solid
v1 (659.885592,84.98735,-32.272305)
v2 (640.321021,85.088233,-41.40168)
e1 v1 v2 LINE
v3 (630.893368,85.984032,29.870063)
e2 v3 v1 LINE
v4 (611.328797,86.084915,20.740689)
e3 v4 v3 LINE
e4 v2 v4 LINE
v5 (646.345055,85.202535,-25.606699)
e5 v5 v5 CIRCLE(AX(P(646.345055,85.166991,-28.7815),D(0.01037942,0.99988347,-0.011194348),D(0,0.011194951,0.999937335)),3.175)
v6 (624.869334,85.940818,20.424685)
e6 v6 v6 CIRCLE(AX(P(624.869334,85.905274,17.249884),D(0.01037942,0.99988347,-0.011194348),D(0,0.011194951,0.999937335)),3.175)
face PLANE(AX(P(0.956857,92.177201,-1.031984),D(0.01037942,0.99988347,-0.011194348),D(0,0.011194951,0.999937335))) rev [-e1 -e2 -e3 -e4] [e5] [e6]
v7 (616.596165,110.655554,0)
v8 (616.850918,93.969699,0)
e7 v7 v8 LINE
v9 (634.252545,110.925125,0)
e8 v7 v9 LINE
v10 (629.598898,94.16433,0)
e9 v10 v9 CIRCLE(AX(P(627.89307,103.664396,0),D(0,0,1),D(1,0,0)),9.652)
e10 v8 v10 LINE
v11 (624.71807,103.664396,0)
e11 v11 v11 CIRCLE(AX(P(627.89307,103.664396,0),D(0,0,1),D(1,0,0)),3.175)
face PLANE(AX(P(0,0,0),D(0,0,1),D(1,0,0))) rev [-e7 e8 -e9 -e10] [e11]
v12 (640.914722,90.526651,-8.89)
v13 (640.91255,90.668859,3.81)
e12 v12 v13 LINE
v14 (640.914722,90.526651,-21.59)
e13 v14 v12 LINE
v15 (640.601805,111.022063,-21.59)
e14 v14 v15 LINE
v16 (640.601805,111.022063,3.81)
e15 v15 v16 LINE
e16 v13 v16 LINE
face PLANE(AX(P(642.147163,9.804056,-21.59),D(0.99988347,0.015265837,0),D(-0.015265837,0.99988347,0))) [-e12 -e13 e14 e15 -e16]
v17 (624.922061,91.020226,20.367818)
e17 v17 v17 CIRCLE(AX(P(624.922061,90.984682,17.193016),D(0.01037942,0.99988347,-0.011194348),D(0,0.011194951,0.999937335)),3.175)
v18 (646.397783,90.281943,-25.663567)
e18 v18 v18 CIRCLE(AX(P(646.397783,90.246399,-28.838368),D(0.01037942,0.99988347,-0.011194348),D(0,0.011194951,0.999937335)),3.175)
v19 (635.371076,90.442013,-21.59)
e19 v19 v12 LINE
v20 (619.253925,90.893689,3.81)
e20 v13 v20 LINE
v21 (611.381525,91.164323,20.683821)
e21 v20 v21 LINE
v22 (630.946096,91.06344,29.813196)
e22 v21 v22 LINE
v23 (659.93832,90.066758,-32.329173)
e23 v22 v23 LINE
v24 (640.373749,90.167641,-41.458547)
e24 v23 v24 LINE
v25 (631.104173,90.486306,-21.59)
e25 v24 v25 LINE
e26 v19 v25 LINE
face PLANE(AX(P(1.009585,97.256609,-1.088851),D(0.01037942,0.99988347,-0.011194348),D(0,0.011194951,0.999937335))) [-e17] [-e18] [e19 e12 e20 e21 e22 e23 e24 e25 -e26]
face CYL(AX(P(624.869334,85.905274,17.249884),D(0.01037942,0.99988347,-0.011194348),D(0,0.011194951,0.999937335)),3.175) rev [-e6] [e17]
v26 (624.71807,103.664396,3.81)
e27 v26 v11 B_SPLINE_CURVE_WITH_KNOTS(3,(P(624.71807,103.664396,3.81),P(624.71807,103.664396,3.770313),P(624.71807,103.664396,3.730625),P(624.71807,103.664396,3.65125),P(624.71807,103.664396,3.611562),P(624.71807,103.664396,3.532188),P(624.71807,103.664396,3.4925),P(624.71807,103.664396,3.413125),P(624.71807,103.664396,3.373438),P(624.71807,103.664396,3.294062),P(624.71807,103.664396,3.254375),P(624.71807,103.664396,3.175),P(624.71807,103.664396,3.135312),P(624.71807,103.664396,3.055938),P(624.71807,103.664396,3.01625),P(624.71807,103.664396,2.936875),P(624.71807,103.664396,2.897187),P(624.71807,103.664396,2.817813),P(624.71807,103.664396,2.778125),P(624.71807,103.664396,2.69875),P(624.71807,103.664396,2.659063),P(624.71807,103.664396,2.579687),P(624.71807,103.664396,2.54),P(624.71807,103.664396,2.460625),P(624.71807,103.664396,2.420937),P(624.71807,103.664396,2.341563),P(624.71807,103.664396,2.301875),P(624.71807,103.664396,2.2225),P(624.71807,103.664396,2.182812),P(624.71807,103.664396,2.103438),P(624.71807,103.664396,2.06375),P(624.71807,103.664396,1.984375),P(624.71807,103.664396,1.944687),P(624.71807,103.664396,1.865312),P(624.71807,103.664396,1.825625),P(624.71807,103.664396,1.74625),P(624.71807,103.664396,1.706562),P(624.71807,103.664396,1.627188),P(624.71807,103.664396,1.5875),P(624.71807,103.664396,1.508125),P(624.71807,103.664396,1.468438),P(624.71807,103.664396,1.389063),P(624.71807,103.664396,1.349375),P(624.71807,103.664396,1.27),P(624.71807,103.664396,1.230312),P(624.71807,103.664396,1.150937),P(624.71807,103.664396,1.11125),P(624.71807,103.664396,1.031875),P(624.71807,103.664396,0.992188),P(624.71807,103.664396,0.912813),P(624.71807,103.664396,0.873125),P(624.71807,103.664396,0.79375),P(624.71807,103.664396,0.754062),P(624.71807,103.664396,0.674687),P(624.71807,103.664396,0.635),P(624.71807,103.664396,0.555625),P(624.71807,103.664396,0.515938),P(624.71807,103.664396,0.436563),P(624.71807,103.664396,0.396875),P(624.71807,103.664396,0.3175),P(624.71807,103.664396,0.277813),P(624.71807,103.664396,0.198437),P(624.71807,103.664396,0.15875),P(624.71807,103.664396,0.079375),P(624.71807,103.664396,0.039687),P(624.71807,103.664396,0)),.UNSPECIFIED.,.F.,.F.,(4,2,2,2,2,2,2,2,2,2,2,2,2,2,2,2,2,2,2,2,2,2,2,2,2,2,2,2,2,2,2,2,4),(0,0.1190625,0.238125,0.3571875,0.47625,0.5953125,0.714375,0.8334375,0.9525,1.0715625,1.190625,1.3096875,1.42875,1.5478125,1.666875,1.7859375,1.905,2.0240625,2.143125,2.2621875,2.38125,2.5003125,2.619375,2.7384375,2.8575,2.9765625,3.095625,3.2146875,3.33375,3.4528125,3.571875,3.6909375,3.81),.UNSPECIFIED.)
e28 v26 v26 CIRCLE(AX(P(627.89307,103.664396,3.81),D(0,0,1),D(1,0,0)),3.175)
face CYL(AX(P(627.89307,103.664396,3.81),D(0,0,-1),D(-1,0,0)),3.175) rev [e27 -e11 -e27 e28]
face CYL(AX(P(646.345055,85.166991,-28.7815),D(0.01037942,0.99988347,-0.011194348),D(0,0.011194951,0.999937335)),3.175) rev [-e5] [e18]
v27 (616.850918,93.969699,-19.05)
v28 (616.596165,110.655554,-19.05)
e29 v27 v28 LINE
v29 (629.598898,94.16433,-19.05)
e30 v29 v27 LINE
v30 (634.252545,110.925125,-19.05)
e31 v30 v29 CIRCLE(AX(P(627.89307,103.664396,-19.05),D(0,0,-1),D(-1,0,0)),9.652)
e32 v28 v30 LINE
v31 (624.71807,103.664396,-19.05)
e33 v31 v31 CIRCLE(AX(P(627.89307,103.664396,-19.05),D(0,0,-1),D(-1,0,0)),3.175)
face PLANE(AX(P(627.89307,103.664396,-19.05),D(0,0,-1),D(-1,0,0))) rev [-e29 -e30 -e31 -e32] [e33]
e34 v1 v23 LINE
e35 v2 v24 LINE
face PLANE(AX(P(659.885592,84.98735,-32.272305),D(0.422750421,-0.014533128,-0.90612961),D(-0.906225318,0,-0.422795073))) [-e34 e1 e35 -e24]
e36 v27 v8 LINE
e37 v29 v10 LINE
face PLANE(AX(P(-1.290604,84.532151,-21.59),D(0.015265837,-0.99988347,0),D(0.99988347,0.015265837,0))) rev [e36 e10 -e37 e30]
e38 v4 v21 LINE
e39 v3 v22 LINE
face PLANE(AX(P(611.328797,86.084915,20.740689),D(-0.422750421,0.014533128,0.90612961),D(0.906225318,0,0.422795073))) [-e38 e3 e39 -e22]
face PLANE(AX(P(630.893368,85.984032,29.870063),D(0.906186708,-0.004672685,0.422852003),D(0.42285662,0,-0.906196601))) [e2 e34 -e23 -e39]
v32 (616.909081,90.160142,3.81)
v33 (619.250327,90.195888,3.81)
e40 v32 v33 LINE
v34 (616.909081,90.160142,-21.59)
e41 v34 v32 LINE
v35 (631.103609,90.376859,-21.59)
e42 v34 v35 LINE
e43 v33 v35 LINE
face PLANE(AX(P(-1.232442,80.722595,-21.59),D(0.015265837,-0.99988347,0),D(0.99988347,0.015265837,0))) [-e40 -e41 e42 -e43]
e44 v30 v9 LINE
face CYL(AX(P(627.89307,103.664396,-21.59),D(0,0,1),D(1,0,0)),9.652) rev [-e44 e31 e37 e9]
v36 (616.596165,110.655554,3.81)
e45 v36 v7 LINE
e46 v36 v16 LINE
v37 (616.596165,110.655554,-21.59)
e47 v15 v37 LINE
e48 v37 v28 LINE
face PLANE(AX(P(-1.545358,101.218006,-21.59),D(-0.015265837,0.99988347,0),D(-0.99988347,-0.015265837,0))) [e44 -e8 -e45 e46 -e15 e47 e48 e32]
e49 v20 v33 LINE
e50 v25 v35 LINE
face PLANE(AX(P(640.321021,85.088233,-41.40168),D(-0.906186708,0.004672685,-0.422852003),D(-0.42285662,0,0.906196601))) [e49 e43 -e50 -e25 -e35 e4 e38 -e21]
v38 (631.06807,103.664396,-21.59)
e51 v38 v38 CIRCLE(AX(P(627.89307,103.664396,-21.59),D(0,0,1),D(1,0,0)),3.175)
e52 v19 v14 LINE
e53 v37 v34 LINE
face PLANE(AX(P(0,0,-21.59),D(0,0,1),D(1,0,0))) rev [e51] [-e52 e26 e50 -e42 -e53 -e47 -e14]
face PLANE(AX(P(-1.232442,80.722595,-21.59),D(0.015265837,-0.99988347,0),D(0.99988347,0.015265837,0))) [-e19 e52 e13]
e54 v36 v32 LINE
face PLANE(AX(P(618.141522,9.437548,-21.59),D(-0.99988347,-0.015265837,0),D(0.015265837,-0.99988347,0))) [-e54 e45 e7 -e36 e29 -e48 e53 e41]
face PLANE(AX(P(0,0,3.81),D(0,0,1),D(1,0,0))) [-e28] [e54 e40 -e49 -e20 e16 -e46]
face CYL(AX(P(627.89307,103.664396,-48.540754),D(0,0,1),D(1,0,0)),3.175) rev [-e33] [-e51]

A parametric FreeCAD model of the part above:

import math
import FreeCAD as App
import Part
import Sketcher
Q = App.Units.Quantity


def add_polygon(sketch, points):
    """Adds a closed chain of lines whose ends are joined by coincident constraints."""
    first, n = sketch.GeometryCount, len(points)
    for a, b in zip(points, points[1:] + points[:1]):
        sketch.addGeometry(Part.LineSegment(App.Vector(*a, 0), App.Vector(*b, 0)), False)
    for i in range(n):
        sketch.addConstraint(Sketcher.Constraint("Coincident", first + i, 2, first + (i + 1) % n, 1))

doc = App.newDocument("Part")
body = doc.addObject("PartDesign::Body", "Body")

# Sketch on XY plane
sketch1 = doc.addObject("Sketcher::SketchObject", "Sketch")
body.addObject(sketch1)
sketch1.AttachmentSupport = (doc.XY_Plane, [""])
sketch1.MapMode = "FlatFace"
sketch1.addGeometry([
    Part.LineSegment(App.Vector(629.6, 94.2, 0), App.Vector(616.9, 94, 0)),  # 0
    Part.LineSegment(App.Vector(616.9, 94, 0), App.Vector(616.9, 90.2, 0)),  # 1
    Part.LineSegment(App.Vector(616.9, 90.2, 0), App.Vector(640.9, 90.5, 0)),  # 2
    Part.LineSegment(App.Vector(640.9, 90.5, 0), App.Vector(640.6, 111, 0)),  # 3
    Part.LineSegment(App.Vector(640.6, 111, 0), App.Vector(634.3, 110.9, 0)),  # 4
    Part.ArcOfCircle(Part.Circle(App.Vector(627.9, 103.7, 0), App.Vector(0, 0, 1), 9.7), math.radians(-47), math.radians(49)),  # 5
    Part.ArcOfCircle(Part.Circle(App.Vector(627.9, 103.7, 0), App.Vector(0, 0, 1), 9.7), math.radians(-80), math.radians(-47)),  # 6
], False)
sketch1.addConstraint([
    Sketcher.Constraint("Coincident", 0, 2, 1, 1),
    Sketcher.Constraint("Coincident", 1, 2, 2, 1),
    Sketcher.Constraint("Coincident", 2, 2, 3, 1),
    Sketcher.Constraint("Coincident", 3, 2, 4, 1),
    Sketcher.Constraint("Coincident", 4, 2, 5, 2),
    Sketcher.Constraint("Tangent", 5, 1, 6, 2),
    Sketcher.Constraint("Coincident", 6, 1, 0, 1),
    Sketcher.Constraint("Equal", 5, 6),
    Sketcher.Constraint("Perpendicular", 0, 1),
    Sketcher.Constraint("Perpendicular", 1, 2),
    Sketcher.Constraint("Perpendicular", 2, 3),
    Sketcher.Constraint("Perpendicular", 3, 4),
    Sketcher.Constraint("Radius", 5, Q("0.38 in")),
    Sketcher.Constraint("Distance", 1, Q("0.15 in")),
    Sketcher.Constraint("Distance", 4, Q("0.25 in")),
    Sketcher.Constraint("Distance", 3, Q("0.807 in")),
    Sketcher.Constraint("DistanceY", -1, 1, 0, 2, Q("93.969699 mm")),
    Sketcher.Constraint("DistanceY", 5, 1, 6, 3, Q("7.063202 mm")),
    Sketcher.Constraint("Distance", 2, Q("24.008438 mm")),
    Sketcher.Constraint("DistanceX", -1, 1, 5, 3, Q("627.89307 mm")),
    Sketcher.Constraint("DistanceX", -1, 1, 0, 2, Q("616.850918 mm")),
    Sketcher.Constraint("DistanceX", -1, 1, 1, 2, Q("616.909081 mm")),
])
pad1 = doc.addObject("PartDesign::Pad", "Pad")
body.addObject(pad1)
pad1.Profile = sketch1
pad1.Length = Q("0.85 in")
pad1.Reversed = True

# Sketch on XY plane
sketch2 = doc.addObject("Sketcher::SketchObject", "Sketch001")
body.addObject(sketch2)
sketch2.AttachmentSupport = (doc.XY_Plane, [""])
sketch2.MapMode = "FlatFace"
sketch2.AttachmentOffset = App.Placement(App.Vector(0, 0, -0.75 * 25.4), App.Rotation())
sketch2.addGeometry([
    Part.LineSegment(App.Vector(616.9, 94, 0), App.Vector(616.6, 110.7, 0)),  # 0
    Part.LineSegment(App.Vector(616.6, 110.7, 0), App.Vector(634.3, 110.9, 0)),  # 1
    Part.ArcOfCircle(Part.Circle(App.Vector(627.9, 103.7, 0), App.Vector(0, 0, 1), 9.7), math.radians(-80), math.radians(49)),  # 2
    Part.LineSegment(App.Vector(629.6, 94.2, 0), App.Vector(616.9, 94, 0)),  # 3
    Part.Circle(App.Vector(627.9, 103.7, 0), App.Vector(0, 0, 1), 3.2),  # 4
], False)
sketch2.addConstraint([
    Sketcher.Constraint("Coincident", 0, 2, 1, 1),
    Sketcher.Constraint("Coincident", 1, 2, 2, 2),
    Sketcher.Constraint("Coincident", 2, 1, 3, 1),
    Sketcher.Constraint("Coincident", 3, 2, 0, 1),
    Sketcher.Constraint("Coincident", 4, 3, 2, 3),
    Sketcher.Constraint("Perpendicular", 0, 1),
    Sketcher.Constraint("Parallel", 1, 3),
    Sketcher.Constraint("Diameter", 4, Q("0.25 in")),
    Sketcher.Constraint("Radius", 2, Q("0.38 in")),
    Sketcher.Constraint("Distance", 0, Q("0.657 in")),
    Sketcher.Constraint("DistanceY", -1, 1, 3, 2, Q("93.969699 mm")),
    Sketcher.Constraint("Distance", 1, Q("17.658438 mm")),
    Sketcher.Constraint("DistanceX", -1, 1, 2, 3, Q("627.89307 mm")),
    Sketcher.Constraint("DistanceY", -1, 1, 2, 1, Q("94.16433 mm")),
    Sketcher.Constraint("DistanceX", -1, 1, 3, 2, Q("616.850918 mm")),
])
pad2 = doc.addObject("PartDesign::Pad", "Pad001")
body.addObject(pad2)
pad2.Profile = sketch2
pad2.Length = Q("0.1 in")
pad2.Reversed = True

# Sketch on XY plane
sketch3 = doc.addObject("Sketcher::SketchObject", "Sketch002")
body.addObject(sketch3)
sketch3.AttachmentSupport = (doc.XY_Plane, [""])
sketch3.MapMode = "FlatFace"
sketch3.AttachmentOffset = App.Placement(App.Vector(0, 0, 0.15 * 25.4), App.Rotation())
add_polygon(sketch3, [(634.3, 110.9), (616.6, 110.7), (616.9, 94), (616.9, 90.2), (640.9, 90.5), (640.6, 111)])  # lines 0-5
sketch3.addGeometry(Part.Circle(App.Vector(627.9, 103.7, 0), App.Vector(0, 0, 1), 3.2), False)  # 6
sketch3.addConstraint([
    Sketcher.Constraint("Perpendicular", 0, 1),
    Sketcher.Constraint("Parallel", 1, 2),
    Sketcher.Constraint("Perpendicular", 2, 3),
    Sketcher.Constraint("Perpendicular", 3, 4),
    Sketcher.Constraint("Perpendicular", 4, 5),
    Sketcher.Constraint("Diameter", 6, Q("0.25 in")),
    Sketcher.Constraint("Distance", 2, Q("0.15 in")),
    Sketcher.Constraint("Distance", 5, Q("0.25 in")),
    Sketcher.Constraint("Distance", 1, Q("0.657 in")),
    Sketcher.Constraint("DistanceY", -1, 1, 1, 2, Q("93.969699 mm")),
    Sketcher.Constraint("Distance", 0, Q("17.658438 mm")),
    Sketcher.Constraint("DistanceX", -1, 1, 6, 3, Q("627.89307 mm")),
    Sketcher.Constraint("DistanceX", -1, 1, 1, 2, Q("616.850918 mm")),
    Sketcher.Constraint("DistanceX", -1, 1, 2, 2, Q("616.909081 mm")),
    Sketcher.Constraint("DistanceY", 6, 3, 5, 2, Q("7.260729 mm")),
])
pad3 = doc.addObject("PartDesign::Pad", "Pad002")
body.addObject(pad3)
pad3.Profile = sketch3
pad3.Length = Q("0.15 in")
pad3.Reversed = True

# Sketch on an angled plane
sketch4 = doc.addObject("Sketcher::SketchObject", "Sketch003")
body.addObject(sketch4)
sketch4.Placement = App.Placement(App.Vector(1.009585, 97.256609, -1.088851), App.Rotation(App.Vector(0.999946132, -0.01037877, 0.000116197), App.Vector(0, -0.011194951, -0.999937334), App.Vector(0.01037942, 0.99988347, -0.011194348), "ZXY"))
add_polygon(sketch4, [(630, -30.8), (659, 31.3), (639.4, 40.4), (610.4, -21.7)])  # lines 0-3
sketch4.addGeometry(Part.Circle(App.Vector(623.9, -18.2, 0), App.Vector(0, 0, 1), 3.2), False)  # 4
sketch4.addGeometry(Part.Circle(App.Vector(645.4, 27.8, 0), App.Vector(0, 0, 1), 3.2), False)  # 5
sketch4.addConstraint([
    Sketcher.Constraint("Equal", 4, 5),
    Sketcher.Constraint("Perpendicular", 0, 1),
    Sketcher.Constraint("Perpendicular", 1, 2),
    Sketcher.Constraint("Perpendicular", 2, 3),
    Sketcher.Constraint("Diameter", 4, Q("0.25 in")),
    Sketcher.Constraint("Distance", 0, Q("2.7 in")),
    Sketcher.Constraint("Distance", 1, Q("0.85 in")),
    Sketcher.Constraint("DistanceX", 1, 2, 0, 2, Q("0.7703002 in")),
    Sketcher.Constraint("DistanceY", 4, 3, -1, 1, Q("18.210508 mm")),
    Sketcher.Constraint("DistanceX", -1, 1, 0, 2, Q("658.964231 mm")),
    Sketcher.Constraint("DistanceY", 3, 2, -1, 1, Q("30.830779 mm")),
    Sketcher.Constraint("DistanceX", 4, 3, 5, 3, Q("21.476878 mm")),
    Sketcher.Constraint("DistanceX", 1, 2, 5, 3, Q("6.024359 mm")),
    Sketcher.Constraint("DistanceY", 5, 3, 1, 2, Q("12.62027 mm")),
])
pad4 = doc.addObject("PartDesign::Pad", "Pad003")
body.addObject(pad4)
pad4.Profile = sketch4
pad4.Length = Q("0.2 in")
pad4.Reversed = True

doc.recompute()
